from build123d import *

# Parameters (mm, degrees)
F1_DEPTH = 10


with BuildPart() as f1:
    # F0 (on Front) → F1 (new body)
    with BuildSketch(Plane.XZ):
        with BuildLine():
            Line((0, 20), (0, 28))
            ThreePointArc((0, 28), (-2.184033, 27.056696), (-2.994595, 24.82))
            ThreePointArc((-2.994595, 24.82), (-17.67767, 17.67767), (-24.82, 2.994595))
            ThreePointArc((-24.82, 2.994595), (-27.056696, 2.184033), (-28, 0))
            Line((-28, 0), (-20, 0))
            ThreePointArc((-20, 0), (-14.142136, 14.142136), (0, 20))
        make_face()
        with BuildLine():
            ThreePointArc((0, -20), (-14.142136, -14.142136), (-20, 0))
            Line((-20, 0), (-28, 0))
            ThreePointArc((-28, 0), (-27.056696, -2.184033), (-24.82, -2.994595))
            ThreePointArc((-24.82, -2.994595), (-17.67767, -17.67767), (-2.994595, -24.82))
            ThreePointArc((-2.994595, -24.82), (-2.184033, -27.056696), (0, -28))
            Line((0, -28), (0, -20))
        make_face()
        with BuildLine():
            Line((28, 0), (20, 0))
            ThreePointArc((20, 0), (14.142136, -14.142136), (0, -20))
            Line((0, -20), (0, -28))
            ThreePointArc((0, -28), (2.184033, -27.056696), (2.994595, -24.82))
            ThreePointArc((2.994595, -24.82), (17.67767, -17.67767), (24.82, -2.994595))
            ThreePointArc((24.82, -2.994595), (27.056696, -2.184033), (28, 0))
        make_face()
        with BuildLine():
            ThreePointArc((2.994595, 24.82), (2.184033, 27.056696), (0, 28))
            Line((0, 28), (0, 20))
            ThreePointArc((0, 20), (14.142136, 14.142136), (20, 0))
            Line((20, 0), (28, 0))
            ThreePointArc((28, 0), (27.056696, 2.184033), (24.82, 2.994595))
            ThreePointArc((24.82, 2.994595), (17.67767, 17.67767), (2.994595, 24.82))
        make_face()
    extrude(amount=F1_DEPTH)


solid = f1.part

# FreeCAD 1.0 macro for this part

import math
import FreeCAD as App
import Part
import Sketcher
Q = App.Units.Quantity

doc = App.newDocument("Part")
params = doc.addObject("Spreadsheet::Sheet", "Params")
for row, (alias, value) in enumerate([
    ("sketch1_radius", "3 mm"),
    ("sketch1_radius2", "19.999999 mm"),
    ("pad1_length", "10 mm"),
], start=1):
    params.set(f"A{row}", alias)
    params.set(f"B{row}", "=" + value)
    params.setAlias(f"B{row}", alias)

body = doc.addObject("PartDesign::Body", "Body")

# Sketch on XZ plane
sketch1 = body.newObject("Sketcher::SketchObject", "Sketch")
sketch1.AttachmentSupport = (doc.getObject("XZ_Plane"), [""])
sketch1.MapMode = "FlatFace"
sketch1.addGeometry([
    Part.ArcOfCircle(Part.Circle(App.Vector(0, 25, 0), App.Vector(0, 0, 1), 3), math.radians(90), math.radians(183)),  # 0
    Part.ArcOfCircle(Part.Circle(App.Vector(0, 0, 0), App.Vector(0, 0, 1), 25), math.radians(97), math.radians(173)),  # 1
    Part.ArcOfCircle(Part.Circle(App.Vector(-25, 0, 0), App.Vector(0, 0, 1), 3), math.radians(87), math.radians(180)),  # 2
    Part.ArcOfCircle(Part.Circle(App.Vector(-25, 0, 0), App.Vector(0, 0, 1), 3), math.radians(-180), math.radians(-87)),  # 3
    Part.ArcOfCircle(Part.Circle(App.Vector(0, 0, 0), App.Vector(0, 0, 1), 25), math.radians(-173), math.radians(-97)),  # 4
    Part.ArcOfCircle(Part.Circle(App.Vector(0, -25, 0), App.Vector(0, 0, 1), 3), math.radians(177), math.radians(270)),  # 5
    Part.ArcOfCircle(Part.Circle(App.Vector(0, -25, 0), App.Vector(0, 0, 1), 3), math.radians(-90), math.radians(3)),  # 6
    Part.ArcOfCircle(Part.Circle(App.Vector(0, 0, 0), App.Vector(0, 0, 1), 25), math.radians(-83), math.radians(-7)),  # 7
    Part.ArcOfCircle(Part.Circle(App.Vector(25, 0, 0), App.Vector(0, 0, 1), 3), math.radians(-93), math.radians(0)),  # 8
    Part.ArcOfCircle(Part.Circle(App.Vector(25, 0, 0), App.Vector(0, 0, 1), 3), math.radians(0), math.radians(93)),  # 9
    Part.ArcOfCircle(Part.Circle(App.Vector(0, 0, 0), App.Vector(0, 0, 1), 25), math.radians(7), math.radians(83)),  # 10
    Part.ArcOfCircle(Part.Circle(App.Vector(0, 25, 0), App.Vector(0, 0, 1), 3), math.radians(-3), math.radians(90)),  # 11
    Part.ArcOfCircle(Part.Circle(App.Vector(0, 0, 0), App.Vector(0, 0, 1), 20), math.radians(-90), math.radians(0)),  # 12
    Part.ArcOfCircle(Part.Circle(App.Vector(0, 0, 0), App.Vector(0, 0, 1), 20), math.radians(180), math.radians(270)),  # 13
    Part.ArcOfCircle(Part.Circle(App.Vector(0, 0, 0), App.Vector(0, 0, 1), 20), math.radians(90), math.radians(180)),  # 14
    Part.ArcOfCircle(Part.Circle(App.Vector(0, 0, 0), App.Vector(0, 0, 1), 20), math.radians(0), math.radians(90)),  # 15
], False)
sketch1.addConstraint([
    Sketcher.Constraint("Coincident", 0, 2, 1, 1),
    Sketcher.Constraint("Coincident", 1, 2, 2, 1),
    Sketcher.Constraint("Tangent", 2, 2, 3, 1),
    Sketcher.Constraint("Coincident", 3, 2, 4, 1),
    Sketcher.Constraint("Coincident", 4, 2, 5, 1),
    Sketcher.Constraint("Tangent", 5, 2, 6, 1),
    Sketcher.Constraint("Coincident", 6, 2, 7, 1),
    Sketcher.Constraint("Coincident", 7, 2, 8, 1),
    Sketcher.Constraint("Tangent", 8, 2, 9, 1),
    Sketcher.Constraint("Coincident", 9, 2, 10, 1),
    Sketcher.Constraint("Coincident", 10, 2, 11, 1),
    Sketcher.Constraint("Tangent", 11, 2, 0, 1),
    Sketcher.Constraint("Tangent", 12, 1, 13, 2),
    Sketcher.Constraint("Tangent", 13, 1, 14, 2),
    Sketcher.Constraint("Tangent", 14, 1, 15, 2),
    Sketcher.Constraint("Tangent", 15, 1, 12, 2),
    Sketcher.Constraint("Coincident", 1, 3, -1, 1),
    Sketcher.Constraint("Coincident", 4, 3, -1, 1),
    Sketcher.Constraint("Coincident", 7, 3, -1, 1),
    Sketcher.Constraint("Coincident", 10, 3, -1, 1),
    Sketcher.Constraint("Coincident", 12, 3, -1, 1),
    Sketcher.Constraint("Equal", 0, 2),
    Sketcher.Constraint("Equal", 2, 3),
    Sketcher.Constraint("Equal", 1, 4),
    Sketcher.Constraint("Equal", 3, 5),
    Sketcher.Constraint("Equal", 5, 6),
    Sketcher.Constraint("Equal", 4, 7),
    Sketcher.Constraint("Equal", 6, 8),
    Sketcher.Constraint("Equal", 8, 9),
    Sketcher.Constraint("Equal", 7, 10),
    Sketcher.Constraint("Equal", 9, 11),
    Sketcher.Constraint("Equal", 12, 13),
    Sketcher.Constraint("Symmetric", 0, 3, 5, 3, -1, 1),
    Sketcher.Constraint("Symmetric", 2, 3, 8, 3, -1, 1),
    Sketcher.Constraint("PointOnObject", 0, 3, -2),
    Sketcher.Constraint("PointOnObject", 2, 3, -1),
    Sketcher.Constraint("PointOnObject", 2, 2, -1),
    Sketcher.Constraint("PointOnObject", 5, 2, -2),
    Sketcher.Constraint("PointOnObject", 8, 2, -1),
    Sketcher.Constraint("PointOnObject", 11, 2, -2),
    Sketcher.Constraint("PointOnObject", 12, 1, -2),
    Sketcher.Constraint("PointOnObject", 13, 1, -1),
    Sketcher.Constraint("PointOnObject", 14, 1, -2),
    Sketcher.Constraint("PointOnObject", 15, 1, -1),
    Sketcher.Constraint("Radius", 0, Q("3 mm")),
    Sketcher.Constraint("Radius", 12, Q("19.999999 mm")),
    Sketcher.Constraint("DistanceY", -1, 1, 0, 3, Q("25 mm")),
    Sketcher.Constraint("DistanceX", 2, 3, -1, 1, Q("25 mm")),
    Sketcher.Constraint("DistanceY", -1, 1, 0, 2, Q("24.82 mm")),
])
sketch1.setExpression("Constraints[44]", "Params.sketch1_radius")
sketch1.setExpression("Constraints[45]", "Params.sketch1_radius2")
pad1 = body.newObject("PartDesign::Pad", "Pad")
pad1.Profile = sketch1
pad1.setExpression("Length", "Params.pad1_length")

doc.recompute()
